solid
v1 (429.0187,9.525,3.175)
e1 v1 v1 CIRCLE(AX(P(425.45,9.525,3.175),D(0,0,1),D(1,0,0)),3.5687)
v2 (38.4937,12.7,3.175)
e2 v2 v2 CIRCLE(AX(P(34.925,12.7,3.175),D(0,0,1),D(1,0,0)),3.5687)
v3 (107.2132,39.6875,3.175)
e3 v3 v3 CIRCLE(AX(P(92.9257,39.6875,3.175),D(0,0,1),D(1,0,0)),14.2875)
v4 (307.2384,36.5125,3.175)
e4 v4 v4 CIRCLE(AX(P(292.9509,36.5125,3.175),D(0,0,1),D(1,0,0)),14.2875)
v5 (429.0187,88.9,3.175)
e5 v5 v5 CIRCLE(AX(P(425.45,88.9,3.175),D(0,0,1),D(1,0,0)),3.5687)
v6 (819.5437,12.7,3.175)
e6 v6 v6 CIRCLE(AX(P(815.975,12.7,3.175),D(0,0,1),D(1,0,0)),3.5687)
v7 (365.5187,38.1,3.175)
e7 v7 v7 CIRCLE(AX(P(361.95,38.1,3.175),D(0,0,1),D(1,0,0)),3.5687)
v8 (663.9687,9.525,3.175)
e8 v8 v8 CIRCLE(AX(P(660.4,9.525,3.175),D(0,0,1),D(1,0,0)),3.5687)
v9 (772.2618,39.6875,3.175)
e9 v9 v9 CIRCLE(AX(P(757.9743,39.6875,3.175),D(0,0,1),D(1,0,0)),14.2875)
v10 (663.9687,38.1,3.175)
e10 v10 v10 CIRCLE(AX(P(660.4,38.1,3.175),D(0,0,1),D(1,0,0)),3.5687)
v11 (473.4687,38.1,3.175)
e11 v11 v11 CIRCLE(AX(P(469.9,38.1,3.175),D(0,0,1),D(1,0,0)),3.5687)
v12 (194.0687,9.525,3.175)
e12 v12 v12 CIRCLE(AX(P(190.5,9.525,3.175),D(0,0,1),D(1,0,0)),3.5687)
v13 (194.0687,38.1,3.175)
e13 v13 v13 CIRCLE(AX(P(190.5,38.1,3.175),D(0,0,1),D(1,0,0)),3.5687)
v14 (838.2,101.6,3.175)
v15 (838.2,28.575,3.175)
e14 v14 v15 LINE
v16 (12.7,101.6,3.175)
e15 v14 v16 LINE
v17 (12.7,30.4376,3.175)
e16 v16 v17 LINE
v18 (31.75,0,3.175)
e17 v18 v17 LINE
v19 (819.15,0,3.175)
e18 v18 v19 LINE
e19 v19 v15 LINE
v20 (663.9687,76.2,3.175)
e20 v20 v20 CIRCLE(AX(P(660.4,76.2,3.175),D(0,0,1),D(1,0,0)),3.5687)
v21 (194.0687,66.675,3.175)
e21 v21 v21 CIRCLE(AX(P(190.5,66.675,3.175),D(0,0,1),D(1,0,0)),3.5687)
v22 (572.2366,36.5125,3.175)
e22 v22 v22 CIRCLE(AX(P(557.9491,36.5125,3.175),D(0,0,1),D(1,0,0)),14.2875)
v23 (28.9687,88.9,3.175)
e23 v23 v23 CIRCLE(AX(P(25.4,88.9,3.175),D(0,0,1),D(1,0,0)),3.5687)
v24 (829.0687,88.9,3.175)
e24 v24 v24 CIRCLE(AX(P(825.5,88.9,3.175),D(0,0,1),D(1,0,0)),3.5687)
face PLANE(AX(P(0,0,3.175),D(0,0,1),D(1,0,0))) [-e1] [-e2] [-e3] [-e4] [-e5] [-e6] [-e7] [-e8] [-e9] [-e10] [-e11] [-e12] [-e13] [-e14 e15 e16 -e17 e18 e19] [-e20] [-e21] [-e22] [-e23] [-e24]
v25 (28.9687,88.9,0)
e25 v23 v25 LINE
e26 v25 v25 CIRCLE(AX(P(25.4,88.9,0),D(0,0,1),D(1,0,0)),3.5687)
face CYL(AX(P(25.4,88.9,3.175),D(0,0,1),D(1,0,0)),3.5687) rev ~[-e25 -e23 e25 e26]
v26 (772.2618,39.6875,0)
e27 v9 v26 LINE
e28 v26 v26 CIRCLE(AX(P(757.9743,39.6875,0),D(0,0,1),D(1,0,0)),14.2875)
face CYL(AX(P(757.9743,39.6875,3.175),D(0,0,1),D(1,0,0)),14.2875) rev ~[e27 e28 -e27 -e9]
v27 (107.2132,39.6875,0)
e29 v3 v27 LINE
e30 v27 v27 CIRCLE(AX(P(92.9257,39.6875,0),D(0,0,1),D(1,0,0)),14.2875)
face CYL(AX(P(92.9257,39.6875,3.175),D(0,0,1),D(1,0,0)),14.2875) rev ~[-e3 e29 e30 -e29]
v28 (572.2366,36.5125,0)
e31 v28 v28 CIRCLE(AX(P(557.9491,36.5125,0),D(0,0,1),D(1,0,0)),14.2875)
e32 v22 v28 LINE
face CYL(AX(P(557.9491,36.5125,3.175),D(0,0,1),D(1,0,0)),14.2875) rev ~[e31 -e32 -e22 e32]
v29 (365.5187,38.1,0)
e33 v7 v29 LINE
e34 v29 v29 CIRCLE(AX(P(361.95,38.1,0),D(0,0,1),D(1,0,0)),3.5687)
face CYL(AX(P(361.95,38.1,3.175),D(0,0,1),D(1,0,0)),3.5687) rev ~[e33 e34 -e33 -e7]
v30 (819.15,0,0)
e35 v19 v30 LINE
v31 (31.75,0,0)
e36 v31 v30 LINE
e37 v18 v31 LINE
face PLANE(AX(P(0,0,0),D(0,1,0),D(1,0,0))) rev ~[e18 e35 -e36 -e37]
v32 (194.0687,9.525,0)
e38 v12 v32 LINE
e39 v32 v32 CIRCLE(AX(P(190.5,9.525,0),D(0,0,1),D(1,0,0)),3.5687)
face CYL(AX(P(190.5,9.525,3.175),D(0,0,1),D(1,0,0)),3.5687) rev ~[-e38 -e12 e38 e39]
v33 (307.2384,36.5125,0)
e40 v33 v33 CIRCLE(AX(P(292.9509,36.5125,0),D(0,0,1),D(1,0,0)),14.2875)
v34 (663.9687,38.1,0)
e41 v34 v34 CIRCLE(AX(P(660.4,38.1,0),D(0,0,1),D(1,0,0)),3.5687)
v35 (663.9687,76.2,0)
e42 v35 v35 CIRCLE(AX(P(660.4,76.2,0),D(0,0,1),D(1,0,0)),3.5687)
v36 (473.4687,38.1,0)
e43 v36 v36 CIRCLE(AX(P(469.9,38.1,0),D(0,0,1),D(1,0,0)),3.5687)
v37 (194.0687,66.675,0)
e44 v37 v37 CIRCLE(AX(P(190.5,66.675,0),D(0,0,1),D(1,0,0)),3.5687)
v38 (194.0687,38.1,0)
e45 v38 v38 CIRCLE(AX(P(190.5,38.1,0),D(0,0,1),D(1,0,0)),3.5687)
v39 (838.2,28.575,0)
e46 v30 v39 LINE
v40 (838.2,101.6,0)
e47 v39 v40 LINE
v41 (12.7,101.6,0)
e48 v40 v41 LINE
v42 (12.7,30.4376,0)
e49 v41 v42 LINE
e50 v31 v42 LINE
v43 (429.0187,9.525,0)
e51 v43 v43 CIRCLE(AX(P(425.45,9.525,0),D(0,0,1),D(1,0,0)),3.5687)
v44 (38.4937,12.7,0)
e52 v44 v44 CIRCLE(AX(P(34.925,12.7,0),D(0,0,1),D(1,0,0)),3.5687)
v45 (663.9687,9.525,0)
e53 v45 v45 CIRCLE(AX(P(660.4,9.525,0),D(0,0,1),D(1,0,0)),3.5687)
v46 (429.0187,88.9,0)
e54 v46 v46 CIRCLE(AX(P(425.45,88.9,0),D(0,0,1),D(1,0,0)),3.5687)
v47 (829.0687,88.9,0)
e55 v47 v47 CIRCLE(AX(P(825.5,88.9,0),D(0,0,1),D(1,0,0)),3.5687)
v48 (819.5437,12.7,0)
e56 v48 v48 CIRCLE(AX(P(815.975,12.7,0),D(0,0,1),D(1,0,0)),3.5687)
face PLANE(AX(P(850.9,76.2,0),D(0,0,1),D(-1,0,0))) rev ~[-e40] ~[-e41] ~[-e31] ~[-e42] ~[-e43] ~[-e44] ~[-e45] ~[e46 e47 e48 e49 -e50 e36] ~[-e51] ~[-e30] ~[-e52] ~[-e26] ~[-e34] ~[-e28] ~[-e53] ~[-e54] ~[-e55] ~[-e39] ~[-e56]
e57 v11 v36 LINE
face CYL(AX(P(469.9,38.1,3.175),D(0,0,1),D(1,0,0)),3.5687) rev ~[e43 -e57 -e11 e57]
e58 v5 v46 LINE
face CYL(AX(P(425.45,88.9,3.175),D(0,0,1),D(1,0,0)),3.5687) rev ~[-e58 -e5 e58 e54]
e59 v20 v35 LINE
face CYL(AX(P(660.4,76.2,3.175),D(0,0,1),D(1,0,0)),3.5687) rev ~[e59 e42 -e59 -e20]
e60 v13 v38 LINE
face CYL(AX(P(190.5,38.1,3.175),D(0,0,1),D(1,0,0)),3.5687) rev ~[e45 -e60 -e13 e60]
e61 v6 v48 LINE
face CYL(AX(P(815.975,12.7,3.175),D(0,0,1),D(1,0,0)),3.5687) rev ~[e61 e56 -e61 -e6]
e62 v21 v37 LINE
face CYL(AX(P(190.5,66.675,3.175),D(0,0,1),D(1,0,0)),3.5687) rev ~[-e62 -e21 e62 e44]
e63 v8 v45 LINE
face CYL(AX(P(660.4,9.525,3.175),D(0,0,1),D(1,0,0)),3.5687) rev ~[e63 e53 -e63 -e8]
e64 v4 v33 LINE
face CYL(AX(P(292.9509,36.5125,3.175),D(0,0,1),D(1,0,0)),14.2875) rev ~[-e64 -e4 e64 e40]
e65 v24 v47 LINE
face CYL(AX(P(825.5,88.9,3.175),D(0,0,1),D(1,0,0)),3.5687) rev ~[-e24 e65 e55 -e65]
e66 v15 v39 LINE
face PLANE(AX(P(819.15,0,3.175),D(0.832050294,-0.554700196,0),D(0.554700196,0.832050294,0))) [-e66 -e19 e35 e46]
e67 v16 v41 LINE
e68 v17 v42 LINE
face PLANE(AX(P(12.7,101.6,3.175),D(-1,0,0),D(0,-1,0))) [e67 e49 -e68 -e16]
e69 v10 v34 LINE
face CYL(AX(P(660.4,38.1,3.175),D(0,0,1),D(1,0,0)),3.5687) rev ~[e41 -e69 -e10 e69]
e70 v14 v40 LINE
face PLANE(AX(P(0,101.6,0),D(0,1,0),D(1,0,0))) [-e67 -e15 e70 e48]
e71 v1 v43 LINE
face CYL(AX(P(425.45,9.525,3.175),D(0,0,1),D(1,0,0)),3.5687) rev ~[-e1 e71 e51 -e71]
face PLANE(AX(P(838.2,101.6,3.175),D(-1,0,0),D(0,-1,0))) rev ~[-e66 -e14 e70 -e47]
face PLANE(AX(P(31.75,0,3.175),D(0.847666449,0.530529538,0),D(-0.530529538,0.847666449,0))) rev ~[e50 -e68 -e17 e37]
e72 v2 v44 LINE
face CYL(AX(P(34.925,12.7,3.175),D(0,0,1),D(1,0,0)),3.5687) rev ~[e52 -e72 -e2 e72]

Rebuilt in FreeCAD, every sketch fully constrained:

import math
import FreeCAD as App
import Part
import Sketcher
Q = App.Units.Quantity

doc = App.newDocument("Part")
params = doc.addObject("Spreadsheet::Sheet", "Params")
for row, (alias, value) in enumerate([
    ("sketch1_height", "3 in"),
    ("sketch1_width", "33.5 in"),
    ("pad1_length", "0.125 in"),
    ("sketch2_width", "1 in"),
    ("sketch2_diameter", "1.125 in"),
    ("sketch2_height", "1.5 in"),
    ("pocket1_length", "0.125 in"),
    ("sketch3_diameter", "0.281 in"),
    ("pocket2_length", "0.125 in"),
    ("sketch4_diameter", "0.281 in"),
    ("pocket3_length", "1 in"),
    ("sketch5_width", "33.5 in"),
    ("sketch5_height", "0.125 in"),
    ("pad2_length", "1 in"),
    ("sketch6_diameter", "0.281 in"),
    ("pad3_length", "0.125 in"),
    ("sketch7_diameter", "0.281 in"),
    ("pocket4_length", "0.125 in"),
    ("sketch8_width", "0.5 in"),
    ("sketch8_height", "2.5 in"),
    ("sketch8_height2", "3.25 in"),
    ("pocket5_length", "1 in"),
    ("pad4_length", "0.125 in"),
    ("sketch10_width", "0.25 in"),
    ("sketch10_height", "0.375 in"),
    ("pocket6_length", "0.125 in"),
    ("sketch11_diameter", "0.281 in"),
    ("pocket7_length", "0.125 in"),
    ("sketch12_diameter", "0.281 in"),
    ("pad5_length", "0.125 in"),
    ("sketch13_diameter", "0.281 in"),
    ("pocket8_length", "0.125 in"),
], start=1):
    params.set(f"A{row}", alias)
    params.set(f"B{row}", "=" + value)
    params.setAlias(f"B{row}", alias)

body = doc.addObject("PartDesign::Body", "Body")

sketch1 = doc.addObject("Sketcher::SketchObject", "Sketch")
body.addObject(sketch1)
sketch1.AttachmentSupport = (doc.XY_Plane, [""])
sketch1.MapMode = "FlatFace"
sketch1.addGeometry([
    Part.LineSegment(App.Vector(0, 76, 0), App.Vector(0, 0, 0)),
    Part.LineSegment(App.Vector(0, 0, 0), App.Vector(851, 0, 0)),
    Part.LineSegment(App.Vector(851, 0, 0), App.Vector(851, 76, 0)),
    Part.LineSegment(App.Vector(851, 76, 0), App.Vector(0, 76, 0)),
], False)
sketch1.addConstraint([
    Sketcher.Constraint("Coincident", 0, 2, 1, 1),
    Sketcher.Constraint("Coincident", 1, 2, 2, 1),
    Sketcher.Constraint("Coincident", 2, 2, 3, 1),
    Sketcher.Constraint("Coincident", 3, 2, 0, 1),
    Sketcher.Constraint("Vertical", 0),
    Sketcher.Constraint("Horizontal", 1),
    Sketcher.Constraint("Vertical", 2),
    Sketcher.Constraint("Horizontal", 3),
    Sketcher.Constraint("Coincident", 0, 2, -1, 1),
    Sketcher.Constraint("DistanceY", 0, 2, 0, 1, Q("3 in")),
    Sketcher.Constraint("DistanceX", 1, 1, 1, 2, Q("33.5 in")),
])
sketch1.setExpression("Constraints[9]", "Params.sketch1_height")
sketch1.setExpression("Constraints[10]", "Params.sketch1_width")
pad1 = doc.addObject("PartDesign::Pad", "Pad")
body.addObject(pad1)
pad1.Profile = sketch1
pad1.setExpression("Length", "Params.pad1_length")

sketch2 = doc.addObject("Sketcher::SketchObject", "Sketch001")
body.addObject(sketch2)
sketch2.AttachmentSupport = (doc.XY_Plane, [""])
sketch2.MapMode = "FlatFace"
sketch2.AttachmentOffset = App.Placement(App.Vector(0, 0, 0.125 * 25.4), App.Rotation())
sketch2.addGeometry([
    Part.LineSegment(App.Vector(851, 38, 0), App.Vector(826, 0, 0)),
    Part.LineSegment(App.Vector(826, 0, 0), App.Vector(851, 0, 0)),
    Part.LineSegment(App.Vector(851, 0, 0), App.Vector(851, 38, 0)),
    Part.LineSegment(App.Vector(0, 38, 0), App.Vector(0, 0, 0)),
    Part.LineSegment(App.Vector(0, 0, 0), App.Vector(25, 0, 0)),
    Part.LineSegment(App.Vector(25, 0, 0), App.Vector(0, 38, 0)),
    Part.Circle(App.Vector(293, 37, 0), App.Vector(0, 0, 1), 14),
    Part.Circle(App.Vector(558, 37, 0), App.Vector(0, 0, 1), 14),
    Part.Circle(App.Vector(758, 40, 0), App.Vector(0, 0, 1), 14),
    Part.Circle(App.Vector(93, 40, 0), App.Vector(0, 0, 1), 14),
], False)
sketch2.addConstraint([
    Sketcher.Constraint("Coincident", 0, 2, 1, 1),
    Sketcher.Constraint("Coincident", 1, 2, 2, 1),
    Sketcher.Constraint("Coincident", 2, 2, 0, 1),
    Sketcher.Constraint("Coincident", 3, 2, 4, 1),
    Sketcher.Constraint("Coincident", 4, 2, 5, 1),
    Sketcher.Constraint("Coincident", 5, 2, 3, 1),
    Sketcher.Constraint("Horizontal", 1),
    Sketcher.Constraint("Vertical", 2),
    Sketcher.Constraint("Vertical", 3),
    Sketcher.Constraint("Horizontal", 4),
    Sketcher.Constraint("Coincident", 3, 2, -1, 1),
    Sketcher.Constraint("Equal", 6, 7),
    Sketcher.Constraint("Equal", 7, 8),
    Sketcher.Constraint("Equal", 8, 9),
    Sketcher.Constraint("PointOnObject", 0, 2, -1),
    Sketcher.Constraint("Horizontal", 6, 3, 7, 3),
    Sketcher.Constraint("Horizontal", 8, 3, 9, 3),
    Sketcher.Constraint("Horizontal", 2, 2, 5, 2),
    Sketcher.Constraint("Equal", 1, 4),
    Sketcher.Constraint("DistanceX", 1, 1, 1, 2, Q("1 in")),
    Sketcher.Constraint("Diameter", 6, Q("1.125 in")),
    Sketcher.Constraint("DistanceY", 2, 1, 2, 2, Q("1.5 in")),
    Sketcher.Constraint("DistanceX", -1, 1, 0, 2, Q("32.5 in")),
    Sketcher.Constraint("DistanceY", -1, 1, 6, 3, Q("1.4375 in")),
    Sketcher.Constraint("DistanceY", -1, 1, 8, 3, Q("1.5625 in")),
    Sketcher.Constraint("DistanceX", 6, 3, 7, 3, Q("10.433 in")),
    Sketcher.Constraint("DistanceX", 7, 3, 8, 3, Q("7.875 in")),
    Sketcher.Constraint("DistanceX", 9, 3, 6, 3, Q("7.875 in")),
    Sketcher.Constraint("DistanceX", -1, 1, 6, 3, Q("11.5335 in")),
])
sketch2.setExpression("Constraints[19]", "Params.sketch2_width")
sketch2.setExpression("Constraints[20]", "Params.sketch2_diameter")
sketch2.setExpression("Constraints[21]", "Params.sketch2_height")
pocket1 = doc.addObject("PartDesign::Pocket", "Pocket")
body.addObject(pocket1)
pocket1.Profile = sketch2
pocket1.setExpression("Length", "Params.pocket1_length")

sketch3 = doc.addObject("Sketcher::SketchObject", "Sketch002")
body.addObject(sketch3)
sketch3.AttachmentSupport = (doc.XY_Plane, [""])
sketch3.MapMode = "FlatFace"
sketch3.AttachmentOffset = App.Placement(App.Vector(0, 0, 0.125 * 25.4), App.Rotation())
sketch3.addGeometry([
    Part.Circle(App.Vector(425.4, 66.7, 0), App.Vector(0, 0, 1), 3.6),
    Part.Circle(App.Vector(425.4, 9.5, 0), App.Vector(0, 0, 1), 3.6),
    Part.Circle(App.Vector(190.5, 66.7, 0), App.Vector(0, 0, 1), 3.6),
    Part.Circle(App.Vector(190.5, 9.5, 0), App.Vector(0, 0, 1), 3.6),
    Part.Circle(App.Vector(190.5, 38.1, 0), App.Vector(0, 0, 1), 3.6),
    Part.Circle(App.Vector(660.4, 66.7, 0), App.Vector(0, 0, 1), 3.6),
    Part.Circle(App.Vector(660.4, 9.5, 0), App.Vector(0, 0, 1), 3.6),
    Part.Circle(App.Vector(660.4, 38.1, 0), App.Vector(0, 0, 1), 3.6),
    Part.Circle(App.Vector(838.2, 63.5, 0), App.Vector(0, 0, 1), 3.6),
    Part.Circle(App.Vector(12.7, 63.5, 0), App.Vector(0, 0, 1), 3.6),
    Part.Circle(App.Vector(34.9, 12.7, 0), App.Vector(0, 0, 1), 3.6),
    Part.Circle(App.Vector(816, 12.7, 0), App.Vector(0, 0, 1), 3.6),
], False)
sketch3.addConstraint([
    Sketcher.Constraint("Equal", 0, 1),
    Sketcher.Constraint("Equal", 1, 2),
    Sketcher.Constraint("Equal", 2, 3),
    Sketcher.Constraint("Equal", 3, 4),
    Sketcher.Constraint("Equal", 4, 5),
    Sketcher.Constraint("Equal", 5, 6),
    Sketcher.Constraint("Equal", 6, 7),
    Sketcher.Constraint("Equal", 7, 8),
    Sketcher.Constraint("Equal", 8, 9),
    Sketcher.Constraint("Equal", 9, 10),
    Sketcher.Constraint("Equal", 10, 11),
    Sketcher.Constraint("Horizontal", 0, 3, 2, 3),
    Sketcher.Constraint("Horizontal", 1, 3, 3, 3),
    Sketcher.Constraint("Horizontal", 2, 3, 5, 3),
    Sketcher.Constraint("Horizontal", 3, 3, 6, 3),
    Sketcher.Constraint("Horizontal", 4, 3, 7, 3),
    Sketcher.Constraint("Horizontal", 8, 3, 9, 3),
    Sketcher.Constraint("Horizontal", 10, 3, 11, 3),
    Sketcher.Constraint("Vertical", 0, 3, 1, 3),
    Sketcher.Constraint("Vertical", 2, 3, 3, 3),
    Sketcher.Constraint("Vertical", 3, 3, 4, 3),
    Sketcher.Constraint("Vertical", 5, 3, 6, 3),
    Sketcher.Constraint("Vertical", 6, 3, 7, 3),
    Sketcher.Constraint("Diameter", 0, Q("0.281 in")),
    Sketcher.Constraint("DistanceX", -1, 1, 2, 3, Q("7.5 in")),
    Sketcher.Constraint("DistanceY", -1, 1, 4, 3, Q("1.5 in")),
    Sketcher.Constraint("DistanceX", -1, 1, 9, 3, Q("0.5 in")),
    Sketcher.Constraint("DistanceY", -1, 1, 10, 3, Q("0.5 in")),
    Sketcher.Constraint("DistanceX", -1, 1, 0, 3, Q("16.75 in")),
    Sketcher.Constraint("DistanceY", -1, 1, 1, 3, Q("0.375 in")),
    Sketcher.Constraint("DistanceX", -1, 1, 5, 3, Q("26 in")),
    Sketcher.Constraint("DistanceX", -1, 1, 8, 3, Q("33 in")),
    Sketcher.Constraint("DistanceY", 7, 3, 8, 3, Q("1 in")),
    Sketcher.Constraint("DistanceY", 1, 3, 0, 3, Q("2.25 in")),
    Sketcher.Constraint("DistanceX", -1, 1, 10, 3, Q("1.375 in")),
    Sketcher.Constraint("DistanceX", -1, 1, 11, 3, Q("32.125 in")),
])
sketch3.setExpression("Constraints[23]", "Params.sketch3_diameter")
pocket2 = doc.addObject("PartDesign::Pocket", "Pocket001")
body.addObject(pocket2)
pocket2.Profile = sketch3
pocket2.setExpression("Length", "Params.pocket2_length")

sketch4 = doc.addObject("Sketcher::SketchObject", "Sketch003")
body.addObject(sketch4)
sketch4.AttachmentSupport = (doc.XY_Plane, [""])
sketch4.MapMode = "FlatFace"
sketch4.AttachmentOffset = App.Placement(App.Vector(0, 0, 0.125 * 25.4), App.Rotation())
sketch4.addGeometry([
    Part.Circle(App.Vector(361.9, 38.1, 0), App.Vector(0, 0, 1), 3.6),
    Part.Circle(App.Vector(469.9, 38.1, 0), App.Vector(0, 0, 1), 3.6),
], False)
sketch4.addConstraint([
    Sketcher.Constraint("Equal", 0, 1),
    Sketcher.Constraint("Horizontal", 0, 3, 1, 3),
    Sketcher.Constraint("Diameter", 0, Q("0.281 in")),
    Sketcher.Constraint("DistanceY", -1, 1, 0, 3, Q("1.5 in")),
    Sketcher.Constraint("DistanceX", -1, 1, 0, 3, Q("14.25 in")),
    Sketcher.Constraint("DistanceX", -1, 1, 1, 3, Q("18.5 in")),
])
sketch4.setExpression("Constraints[2]", "Params.sketch4_diameter")
pocket3 = doc.addObject("PartDesign::Pocket", "Pocket002")
body.addObject(pocket3)
pocket3.Profile = sketch4
pocket3.setExpression("Length", "Params.pocket3_length")

sketch5 = doc.addObject("Sketcher::SketchObject", "Sketch004")
body.addObject(sketch5)
sketch5.AttachmentSupport = (doc.XZ_Plane, [""])
sketch5.MapMode = "FlatFace"
sketch5.AttachmentOffset = App.Placement(App.Vector(0, 0, -3 * 25.4), App.Rotation())
sketch5.addGeometry([
    Part.LineSegment(App.Vector(850.9, 3.2, 0), App.Vector(850.9, 0, 0)),
    Part.LineSegment(App.Vector(850.9, 0, 0), App.Vector(0, 0, 0)),
    Part.LineSegment(App.Vector(0, 0, 0), App.Vector(0, 3.2, 0)),
    Part.LineSegment(App.Vector(0, 3.2, 0), App.Vector(850.9, 3.2, 0)),
], False)
sketch5.addConstraint([
    Sketcher.Constraint("Coincident", 0, 2, 1, 1),
    Sketcher.Constraint("Coincident", 1, 2, 2, 1),
    Sketcher.Constraint("Coincident", 2, 2, 3, 1),
    Sketcher.Constraint("Coincident", 3, 2, 0, 1),
    Sketcher.Constraint("Vertical", 0),
    Sketcher.Constraint("Horizontal", 1),
    Sketcher.Constraint("Vertical", 2),
    Sketcher.Constraint("Horizontal", 3),
    Sketcher.Constraint("Coincident", 1, 2, -1, 1),
    Sketcher.Constraint("DistanceX", 1, 2, 1, 1, Q("33.5 in")),
    Sketcher.Constraint("DistanceY", 0, 2, 0, 1, Q("0.125 in")),
])
sketch5.setExpression("Constraints[9]", "Params.sketch5_width")
sketch5.setExpression("Constraints[10]", "Params.sketch5_height")
pad2 = doc.addObject("PartDesign::Pad", "Pad001")
body.addObject(pad2)
pad2.Profile = sketch5
pad2.setExpression("Length", "Params.pad2_length")
pad2.Reversed = True

sketch6 = doc.addObject("Sketcher::SketchObject", "Sketch005")
body.addObject(sketch6)
sketch6.AttachmentSupport = (doc.XY_Plane, [""])
sketch6.MapMode = "FlatFace"
sketch6.AttachmentOffset = App.Placement(App.Vector(0, 0, 0.125 * 25.4), App.Rotation())
sketch6.addGeometry([
    Part.Circle(App.Vector(12.7, 63.5, 0), App.Vector(0, 0, 1), 3.6),
    Part.Circle(App.Vector(838.2, 63.5, 0), App.Vector(0, 0, 1), 3.6),
    Part.Circle(App.Vector(425.4, 66.7, 0), App.Vector(0, 0, 1), 3.6),
], False)
sketch6.addConstraint([
    Sketcher.Constraint("Equal", 0, 1),
    Sketcher.Constraint("Equal", 1, 2),
    Sketcher.Constraint("Horizontal", 0, 3, 1, 3),
    Sketcher.Constraint("Diameter", 0, Q("0.281 in")),
    Sketcher.Constraint("DistanceX", -1, 1, 1, 3, Q("33 in")),
    Sketcher.Constraint("DistanceX", -1, 1, 0, 3, Q("0.5 in")),
    Sketcher.Constraint("DistanceY", -1, 1, 0, 3, Q("2.5 in")),
    Sketcher.Constraint("DistanceX", -1, 1, 2, 3, Q("16.75 in")),
    Sketcher.Constraint("DistanceY", -1, 1, 2, 3, Q("2.625 in")),
])
sketch6.setExpression("Constraints[3]", "Params.sketch6_diameter")
pad3 = doc.addObject("PartDesign::Pad", "Pad002")
body.addObject(pad3)
pad3.Profile = sketch6
pad3.setExpression("Length", "Params.pad3_length")
pad3.Reversed = True

sketch7 = doc.addObject("Sketcher::SketchObject", "Sketch006")
body.addObject(sketch7)
sketch7.AttachmentSupport = (doc.XY_Plane, [""])
sketch7.MapMode = "FlatFace"
sketch7.AttachmentOffset = App.Placement(App.Vector(0, 0, 0.125 * 25.4), App.Rotation())
sketch7.addGeometry([
    Part.Circle(App.Vector(12.7, 88.9, 0), App.Vector(0, 0, 1), 3.6),
    Part.Circle(App.Vector(838.2, 88.9, 0), App.Vector(0, 0, 1), 3.6),
    Part.Circle(App.Vector(425.4, 88.9, 0), App.Vector(0, 0, 1), 3.6),
], False)
sketch7.addConstraint([
    Sketcher.Constraint("Equal", 0, 1),
    Sketcher.Constraint("Equal", 1, 2),
    Sketcher.Constraint("Horizontal", 0, 3, 1, 3),
    Sketcher.Constraint("Horizontal", 1, 3, 2, 3),
    Sketcher.Constraint("Diameter", 0, Q("0.281 in")),
    Sketcher.Constraint("DistanceX", -1, 1, 0, 3, Q("0.5 in")),
    Sketcher.Constraint("DistanceX", -1, 1, 1, 3, Q("33 in")),
    Sketcher.Constraint("DistanceY", -1, 1, 0, 3, Q("3.5 in")),
    Sketcher.Constraint("DistanceX", -1, 1, 2, 3, Q("16.75 in")),
])
sketch7.setExpression("Constraints[4]", "Params.sketch7_diameter")
pocket4 = doc.addObject("PartDesign::Pocket", "Pocket003")
body.addObject(pocket4)
pocket4.Profile = sketch7
pocket4.setExpression("Length", "Params.pocket4_length")

sketch8 = doc.addObject("Sketcher::SketchObject", "Sketch007")
body.addObject(sketch8)
sketch8.AttachmentSupport = (doc.XY_Plane, [""])
sketch8.MapMode = "FlatFace"
sketch8.AttachmentOffset = App.Placement(App.Vector(0, 0, 0.125 * 25.4), App.Rotation())
sketch8.addGeometry([
    Part.LineSegment(App.Vector(851, 102, 0), App.Vector(838, 102, 0)),
    Part.LineSegment(App.Vector(838, 102, 0), App.Vector(838, 19, 0)),
    Part.LineSegment(App.Vector(838, 19, 0), App.Vector(851, 38, 0)),
    Part.LineSegment(App.Vector(851, 38, 0), App.Vector(851, 102, 0)),
    Part.LineSegment(App.Vector(0, 102, 0), App.Vector(0, 38, 0)),
    Part.LineSegment(App.Vector(0, 38, 0), App.Vector(13, 19, 0)),
    Part.LineSegment(App.Vector(13, 19, 0), App.Vector(13, 102, 0)),
    Part.LineSegment(App.Vector(13, 102, 0), App.Vector(0, 102, 0)),
], False)
sketch8.addConstraint([
    Sketcher.Constraint("Coincident", 0, 2, 1, 1),
    Sketcher.Constraint("Coincident", 1, 2, 2, 1),
    Sketcher.Constraint("Coincident", 2, 2, 3, 1),
    Sketcher.Constraint("Coincident", 3, 2, 0, 1),
    Sketcher.Constraint("Coincident", 4, 2, 5, 1),
    Sketcher.Constraint("Coincident", 5, 2, 6, 1),
    Sketcher.Constraint("Coincident", 6, 2, 7, 1),
    Sketcher.Constraint("Coincident", 7, 2, 4, 1),
    Sketcher.Constraint("Horizontal", 0),
    Sketcher.Constraint("Vertical", 1),
    Sketcher.Constraint("Vertical", 3),
    Sketcher.Constraint("Vertical", 4),
    Sketcher.Constraint("Vertical", 6),
    Sketcher.Constraint("Horizontal", 7),
    Sketcher.Constraint("PointOnObject", 4, 2, -2),
    Sketcher.Constraint("Horizontal", 2, 2, 4, 2),
    Sketcher.Constraint("Horizontal", 1, 2, 5, 2),
    Sketcher.Constraint("Horizontal", 3, 2, 6, 2),
    Sketcher.Constraint("Equal", 0, 7),
    Sketcher.Constraint("DistanceX", 0, 2, 0, 1, Q("0.5 in")),
    Sketcher.Constraint("DistanceY", 3, 1, 3, 2, Q("2.5 in")),
    Sketcher.Constraint("DistanceX", -1, 1, 0, 2, Q("33 in")),
    Sketcher.Constraint("DistanceY", -1, 1, 0, 2, Q("4 in")),
    Sketcher.Constraint("DistanceY", 1, 2, 1, 1, Q("3.25 in")),
])
sketch8.setExpression("Constraints[19]", "Params.sketch8_width")
sketch8.setExpression("Constraints[20]", "Params.sketch8_height")
sketch8.setExpression("Constraints[23]", "Params.sketch8_height2")
pocket5 = doc.addObject("PartDesign::Pocket", "Pocket004")
body.addObject(pocket5)
pocket5.Profile = sketch8
pocket5.setExpression("Length", "Params.pocket5_length")

sketch9 = doc.addObject("Sketcher::SketchObject", "Sketch008")
body.addObject(sketch9)
sketch9.AttachmentSupport = (doc.XY_Plane, [""])
sketch9.MapMode = "FlatFace"
sketch9.AttachmentOffset = App.Placement(App.Vector(0, 0, 0.125 * 25.4), App.Rotation())
sketch9.addGeometry([
    Part.LineSegment(App.Vector(12.7, 92.5, 0), App.Vector(12.7, 85.3, 0)),
    Part.ArcOfCircle(Part.Circle(App.Vector(12.7, 88.9, 0), App.Vector(0, 0, 1), 3.6), math.radians(-90), math.radians(90)),
    Part.LineSegment(App.Vector(838.2, 85.3, 0), App.Vector(838.2, 92.5, 0)),
    Part.ArcOfCircle(Part.Circle(App.Vector(838.2, 88.9, 0), App.Vector(0, 0, 1), 3.6), math.radians(90), math.radians(270)),
], False)
sketch9.addConstraint([
    Sketcher.Constraint("Coincident", 0, 1, 1, 2),
    Sketcher.Constraint("Coincident", 1, 1, 0, 2),
    Sketcher.Constraint("Coincident", 2, 1, 3, 2),
    Sketcher.Constraint("Coincident", 3, 1, 2, 2),
    Sketcher.Constraint("Vertical", 0),
    Sketcher.Constraint("Vertical", 2),
    Sketcher.Constraint("Equal", 1, 3),
    Sketcher.Constraint("Horizontal", 1, 3, 3, 3),
    Sketcher.Constraint("Vertical", 1, 3, 0, 1),
    Sketcher.Constraint("Vertical", 3, 3, 2, 1),
    Sketcher.Constraint("DistanceX", -1, 1, 3, 3, Q("33 in")),
    Sketcher.Constraint("DistanceX", -1, 1, 1, 3, Q("0.5 in")),
    Sketcher.Constraint("DistanceY", -1, 1, 1, 3, Q("3.5 in")),
    Sketcher.Constraint("Radius", 1, Q("0.1405 in")),
])
pad4 = doc.addObject("PartDesign::Pad", "Pad003")
body.addObject(pad4)
pad4.Profile = sketch9
pad4.setExpression("Length", "Params.pad4_length")
pad4.Reversed = True

sketch10 = doc.addObject("Sketcher::SketchObject", "Sketch009")
body.addObject(sketch10)
sketch10.AttachmentSupport = (doc.XY_Plane, [""])
sketch10.MapMode = "FlatFace"
sketch10.AttachmentOffset = App.Placement(App.Vector(0, 0, 0.125 * 25.4), App.Rotation())
sketch10.addGeometry([
    Part.LineSegment(App.Vector(13, 19, 0), App.Vector(25, 0, 0)),
    Part.LineSegment(App.Vector(25, 0, 0), App.Vector(32, 0, 0)),
    Part.LineSegment(App.Vector(32, 0, 0), App.Vector(13, 30, 0)),
    Part.LineSegment(App.Vector(13, 30, 0), App.Vector(13, 19, 0)),
    Part.LineSegment(App.Vector(838, 29, 0), App.Vector(819, 0, 0)),
    Part.LineSegment(App.Vector(819, 0, 0), App.Vector(826, 0, 0)),
    Part.LineSegment(App.Vector(826, 0, 0), App.Vector(838, 19, 0)),
    Part.LineSegment(App.Vector(838, 19, 0), App.Vector(838, 29, 0)),
], False)
sketch10.addConstraint([
    Sketcher.Constraint("Coincident", 0, 2, 1, 1),
    Sketcher.Constraint("Coincident", 1, 2, 2, 1),
    Sketcher.Constraint("Coincident", 2, 2, 3, 1),
    Sketcher.Constraint("Coincident", 3, 2, 0, 1),
    Sketcher.Constraint("Coincident", 4, 2, 5, 1),
    Sketcher.Constraint("Coincident", 5, 2, 6, 1),
    Sketcher.Constraint("Coincident", 6, 2, 7, 1),
    Sketcher.Constraint("Coincident", 7, 2, 4, 1),
    Sketcher.Constraint("Horizontal", 1),
    Sketcher.Constraint("Vertical", 3),
    Sketcher.Constraint("Horizontal", 5),
    Sketcher.Constraint("Vertical", 7),
    Sketcher.Constraint("PointOnObject", 0, 2, -1),
    Sketcher.Constraint("PointOnObject", 4, 2, -1),
    Sketcher.Constraint("Parallel", 4, 6),
    Sketcher.Constraint("Horizontal", 3, 2, 6, 2),
    Sketcher.Constraint("Equal", 1, 5),
    Sketcher.Constraint("Equal", 0, 6),
    Sketcher.Constraint("DistanceX", 1, 1, 1, 2, Q("0.25 in")),
    Sketcher.Constraint("DistanceX", -1, 1, 0, 2, Q("1 in")),
    Sketcher.Constraint("DistanceX", -1, 1, 6, 2, Q("33 in")),
    Sketcher.Constraint("DistanceX", 1, 2, 4, 2, Q("31 in")),
    Sketcher.Constraint("DistanceY", 7, 1, 7, 2, Q("0.375 in")),
    Sketcher.Constraint("DistanceY", 3, 2, 3, 1, 11.3876),
])
sketch10.setExpression("Constraints[18]", "Params.sketch10_width")
sketch10.setExpression("Constraints[22]", "Params.sketch10_height")
pocket6 = doc.addObject("PartDesign::Pocket", "Pocket005")
body.addObject(pocket6)
pocket6.Profile = sketch10
pocket6.setExpression("Length", "Params.pocket6_length")

sketch11 = doc.addObject("Sketcher::SketchObject", "Sketch010")
body.addObject(sketch11)
sketch11.AttachmentSupport = (doc.XY_Plane, [""])
sketch11.MapMode = "FlatFace"
sketch11.AttachmentOffset = App.Placement(App.Vector(0, 0, 0.125 * 25.4), App.Rotation())
sketch11.addGeometry([
    Part.Circle(App.Vector(25.4, 88.9, 0), App.Vector(0, 0, 1), 3.6),
    Part.Circle(App.Vector(825.5, 88.9, 0), App.Vector(0, 0, 1), 3.6),
], False)
sketch11.addConstraint([
    Sketcher.Constraint("Equal", 0, 1),
    Sketcher.Constraint("Horizontal", 0, 3, 1, 3),
    Sketcher.Constraint("Diameter", 0, Q("0.281 in")),
    Sketcher.Constraint("DistanceX", -1, 1, 0, 3, Q("1 in")),
    Sketcher.Constraint("DistanceY", -1, 1, 0, 3, Q("3.5 in")),
    Sketcher.Constraint("DistanceX", -1, 1, 1, 3, Q("32.5 in")),
])
sketch11.setExpression("Constraints[2]", "Params.sketch11_diameter")
pocket7 = doc.addObject("PartDesign::Pocket", "Pocket006")
body.addObject(pocket7)
pocket7.Profile = sketch11
pocket7.setExpression("Length", "Params.pocket7_length")

sketch12 = doc.addObject("Sketcher::SketchObject", "Sketch011")
body.addObject(sketch12)
sketch12.AttachmentSupport = (doc.XY_Plane, [""])
sketch12.MapMode = "FlatFace"
sketch12.AttachmentOffset = App.Placement(App.Vector(0, 0, 0.125 * 25.4), App.Rotation())
sketch12.addGeometry(Part.Circle(App.Vector(660.4, 66.7, 0), App.Vector(0, 0, 1), 3.6), False)
sketch12.addConstraint([
    Sketcher.Constraint("Diameter", 0, Q("0.281 in")),
    Sketcher.Constraint("DistanceX", -1, 1, 0, 3, Q("26 in")),
    Sketcher.Constraint("DistanceY", -1, 1, 0, 3, Q("2.625 in")),
])
sketch12.setExpression("Constraints[0]", "Params.sketch12_diameter")
pad5 = doc.addObject("PartDesign::Pad", "Pad004")
body.addObject(pad5)
pad5.Profile = sketch12
pad5.setExpression("Length", "Params.pad5_length")
pad5.Reversed = True

sketch13 = doc.addObject("Sketcher::SketchObject", "Sketch012")
body.addObject(sketch13)
sketch13.AttachmentSupport = (doc.XY_Plane, [""])
sketch13.MapMode = "FlatFace"
sketch13.AttachmentOffset = App.Placement(App.Vector(0, 0, 0.125 * 25.4), App.Rotation())
sketch13.addGeometry(Part.Circle(App.Vector(660.4, 76.2, 0), App.Vector(0, 0, 1), 3.6), False)
sketch13.addConstraint([
    Sketcher.Constraint("Diameter", 0, Q("0.281 in")),
    Sketcher.Constraint("DistanceX", -1, 1, 0, 3, Q("26 in")),
    Sketcher.Constraint("DistanceY", -1, 1, 0, 3, Q("3 in")),
])
sketch13.setExpression("Constraints[0]", "Params.sketch13_diameter")
pocket8 = doc.addObject("PartDesign::Pocket", "Pocket007")
body.addObject(pocket8)
pocket8.Profile = sketch13
pocket8.setExpression("Length", "Params.pocket8_length")

doc.recompute()
